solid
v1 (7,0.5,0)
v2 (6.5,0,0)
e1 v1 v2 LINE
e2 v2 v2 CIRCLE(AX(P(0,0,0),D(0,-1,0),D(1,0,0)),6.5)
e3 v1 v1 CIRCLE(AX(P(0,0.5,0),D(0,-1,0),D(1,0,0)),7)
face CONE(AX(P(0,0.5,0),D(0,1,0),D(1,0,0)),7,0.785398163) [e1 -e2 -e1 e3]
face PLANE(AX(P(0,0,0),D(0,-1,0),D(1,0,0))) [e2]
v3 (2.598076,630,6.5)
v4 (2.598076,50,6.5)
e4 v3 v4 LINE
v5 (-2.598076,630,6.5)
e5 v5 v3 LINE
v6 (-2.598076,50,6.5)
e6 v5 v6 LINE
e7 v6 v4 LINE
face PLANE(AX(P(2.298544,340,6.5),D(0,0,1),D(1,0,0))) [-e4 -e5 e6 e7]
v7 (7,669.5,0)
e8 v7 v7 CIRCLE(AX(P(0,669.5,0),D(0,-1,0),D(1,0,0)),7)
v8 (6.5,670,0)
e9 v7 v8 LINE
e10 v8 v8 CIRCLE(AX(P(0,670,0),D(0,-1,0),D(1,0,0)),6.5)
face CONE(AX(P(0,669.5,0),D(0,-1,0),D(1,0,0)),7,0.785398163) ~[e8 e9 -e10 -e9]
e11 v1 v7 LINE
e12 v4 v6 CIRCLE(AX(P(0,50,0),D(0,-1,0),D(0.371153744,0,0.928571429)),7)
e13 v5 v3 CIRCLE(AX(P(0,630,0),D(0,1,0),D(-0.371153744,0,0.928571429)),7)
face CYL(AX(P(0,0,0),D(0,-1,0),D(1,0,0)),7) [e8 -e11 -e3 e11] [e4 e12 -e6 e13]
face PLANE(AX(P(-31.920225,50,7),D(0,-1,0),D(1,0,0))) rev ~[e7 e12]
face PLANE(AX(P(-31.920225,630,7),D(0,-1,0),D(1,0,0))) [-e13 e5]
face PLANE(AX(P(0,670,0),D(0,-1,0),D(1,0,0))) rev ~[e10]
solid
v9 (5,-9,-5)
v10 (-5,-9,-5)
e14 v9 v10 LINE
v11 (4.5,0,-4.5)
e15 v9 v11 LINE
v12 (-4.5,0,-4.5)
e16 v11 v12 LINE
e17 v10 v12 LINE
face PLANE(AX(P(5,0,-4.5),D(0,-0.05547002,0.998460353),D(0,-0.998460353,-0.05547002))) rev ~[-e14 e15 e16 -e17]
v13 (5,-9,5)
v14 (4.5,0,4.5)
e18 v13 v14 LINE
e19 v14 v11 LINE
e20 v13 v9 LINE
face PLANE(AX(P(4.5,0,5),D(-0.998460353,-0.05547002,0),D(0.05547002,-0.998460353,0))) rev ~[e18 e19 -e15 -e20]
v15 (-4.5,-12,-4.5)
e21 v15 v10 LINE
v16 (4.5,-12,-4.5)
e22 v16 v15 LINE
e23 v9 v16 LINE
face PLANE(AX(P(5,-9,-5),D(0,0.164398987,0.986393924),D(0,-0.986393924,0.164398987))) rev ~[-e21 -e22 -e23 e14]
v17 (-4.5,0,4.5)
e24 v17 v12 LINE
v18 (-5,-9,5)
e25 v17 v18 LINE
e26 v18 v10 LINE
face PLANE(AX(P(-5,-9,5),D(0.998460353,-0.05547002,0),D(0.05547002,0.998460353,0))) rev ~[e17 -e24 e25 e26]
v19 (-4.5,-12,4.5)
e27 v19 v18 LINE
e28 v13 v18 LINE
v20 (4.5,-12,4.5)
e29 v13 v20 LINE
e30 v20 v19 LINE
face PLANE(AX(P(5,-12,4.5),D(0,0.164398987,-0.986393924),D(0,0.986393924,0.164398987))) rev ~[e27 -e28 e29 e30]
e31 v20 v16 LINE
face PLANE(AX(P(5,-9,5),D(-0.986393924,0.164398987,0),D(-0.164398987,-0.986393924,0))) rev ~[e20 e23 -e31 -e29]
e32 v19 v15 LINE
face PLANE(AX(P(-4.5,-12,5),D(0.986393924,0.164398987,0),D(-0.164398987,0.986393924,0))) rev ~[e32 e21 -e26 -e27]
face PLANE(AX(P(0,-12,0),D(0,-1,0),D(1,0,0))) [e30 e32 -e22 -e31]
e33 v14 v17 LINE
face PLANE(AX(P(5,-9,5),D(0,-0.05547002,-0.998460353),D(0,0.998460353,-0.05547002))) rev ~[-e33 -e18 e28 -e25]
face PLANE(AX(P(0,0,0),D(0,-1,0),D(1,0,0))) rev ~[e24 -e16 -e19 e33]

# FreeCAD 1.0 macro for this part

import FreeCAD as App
import Part
import Sketcher

V = App.Vector
Q = App.Units.Quantity


def edges_at(feature, points):
    """Names of the edges that pass closest to the given points."""
    edges = feature.Shape.Edges
    near = lambda p: min(range(len(edges)), key=lambda i: edges[i].distToShape(Part.Vertex(*p))[0])
    return sorted({f"Edge{near(p) + 1}" for p in points})


def add_polygon(sketch, points):
    """Adds a closed chain of lines whose ends are joined by coincident constraints."""
    first, n = sketch.GeometryCount, len(points)
    for a, b in zip(points, points[1:] + points[:1]):
        sketch.addGeometry(Part.LineSegment(App.Vector(*a, 0), App.Vector(*b, 0)), False)
    for i in range(n):
        sketch.addConstraint(Sketcher.Constraint("Coincident", first + i, 2, first + (i + 1) % n, 1))

doc = App.newDocument("Part")
body = doc.addObject("PartDesign::Body", "Body")

sketch1 = body.newObject("Sketcher::SketchObject", "Sketch")
sketch1.AttachmentSupport = (doc.getObject("XZ_Plane"), [""])
sketch1.MapMode = "FlatFace"
sketch1.addGeometry(Part.Circle(V(0, 0, 0), V(0, 0, 1), 7), False)
sketch1.addConstraint(Sketcher.Constraint("Coincident", 0, 3, -1, 1))
sketch1.addConstraint(Sketcher.Constraint("Diameter", 0, Q("14 mm")))
pad1 = body.newObject("PartDesign::Pad", "Pad")
pad1.Profile = sketch1
pad1.Length = 670
pad1.Reversed = True
doc.recompute()

chamfer = body.newObject("PartDesign::Chamfer", "Chamfer")
chamfer.Base = (pad1, edges_at(pad1, [(-7, 0, 0)]))
chamfer.Size = 0.5

sketch2 = body.newObject("Sketcher::SketchObject", "Sketch001")
sketch2.AttachmentSupport = (doc.getObject("XY_Plane"), [""])
sketch2.MapMode = "FlatFace"
sketch2.AttachmentOffset = App.Placement(V(0, 0, 7), App.Rotation())
add_polygon(sketch2, [(-32, 630), (-32, 50), (37, 50), (37, 630)])
sketch2.addConstraint(Sketcher.Constraint("Vertical", 0))
sketch2.addConstraint(Sketcher.Constraint("Horizontal", 1))
sketch2.addConstraint(Sketcher.Constraint("Vertical", 2))
sketch2.addConstraint(Sketcher.Constraint("Horizontal", 3))
sketch2.addConstraint(Sketcher.Constraint("DistanceY", 0, 2, 0, 1, Q("580 mm")))
sketch2.addConstraint(Sketcher.Constraint("DistanceY", -1, 1, 0, 2, Q("50 mm")))
sketch2.addConstraint(Sketcher.Constraint("DistanceX", 1, 1, 1, 2, Q("68.437538 mm")))
sketch2.addConstraint(Sketcher.Constraint("DistanceX", 0, 2, -1, 1, Q("31.920225 mm")))
pocket1 = body.newObject("PartDesign::Pocket", "Pocket")
pocket1.Profile = sketch2
pocket1.Length = 0.5
doc.recompute()

chamfer2 = body.newObject("PartDesign::Chamfer", "Chamfer001")
chamfer2.Base = (pocket1, edges_at(pocket1, [(-7, 670, 0)]))
chamfer2.Size = 0.5
body2 = doc.addObject("PartDesign::Body", "Body001")

sketch3 = body2.newObject("Sketcher::SketchObject", "Sketch002")
sketch3.AttachmentSupport = (doc.getObject("XZ_Plane001"), [""])
sketch3.MapMode = "FlatFace"
add_polygon(sketch3, [(5, 5), (-5, 5), (-5, -5), (5, -5)])
sketch3.addConstraint(Sketcher.Constraint("Horizontal", 0))
sketch3.addConstraint(Sketcher.Constraint("Vertical", 1))
sketch3.addConstraint(Sketcher.Constraint("Horizontal", 2))
sketch3.addConstraint(Sketcher.Constraint("Vertical", 3))
sketch3.addConstraint(Sketcher.Constraint("Symmetric", 0, 2, 2, 2, -1, 1))
sketch3.addConstraint(Sketcher.Constraint("Equal", 2, 1))
sketch3.addConstraint(Sketcher.Constraint("DistanceX", 0, 2, 0, 1, Q("10 mm")))
pad2 = body2.newObject("PartDesign::Pad", "Pad001")
pad2.Profile = sketch3
pad2.Length = 12

sketch4 = body2.newObject("Sketcher::SketchObject", "Sketch003")
sketch4.AttachmentSupport = (doc.getObject("YZ_Plane001"), [""])
sketch4.MapMode = "FlatFace"
sketch4.AttachmentOffset = App.Placement(V(0, 0, 5), App.Rotation())
add_polygon(sketch4, [(-9, -5), (-12, -4.5), (-12, -5)])
sketch4.addConstraint(Sketcher.Constraint("Vertical", 1))
sketch4.addConstraint(Sketcher.Constraint("Horizontal", 2))
sketch4.addConstraint(Sketcher.Constraint("DistanceX", 2, 1, 2, 2, Q("3 mm")))
sketch4.addConstraint(Sketcher.Constraint("DistanceY", 1, 2, 1, 1, Q("0.5 mm")))
sketch4.addConstraint(Sketcher.Constraint("DistanceX", 0, 2, -1, 1, Q("12 mm")))
sketch4.addConstraint(Sketcher.Constraint("DistanceY", 1, 2, -1, 1, Q("5 mm")))
pocket2 = body2.newObject("PartDesign::Pocket", "Pocket001")
pocket2.Profile = sketch4
pocket2.Length = 25

sketch5 = body2.newObject("Sketcher::SketchObject", "Sketch004")
sketch5.AttachmentSupport = (doc.getObject("XY_Plane001"), [""])
sketch5.MapMode = "FlatFace"
sketch5.AttachmentOffset = App.Placement(V(0, 0, 5), App.Rotation())
add_polygon(sketch5, [(5, -9), (4.5, -12), (5, -12)])
sketch5.addConstraint(Sketcher.Constraint("Horizontal", 1))
sketch5.addConstraint(Sketcher.Constraint("Vertical", 2))
sketch5.addConstraint(Sketcher.Constraint("DistanceY", 2, 1, 2, 2, Q("3 mm")))
sketch5.addConstraint(Sketcher.Constraint("DistanceX", 1, 1, 1, 2, Q("0.5 mm")))
sketch5.addConstraint(Sketcher.Constraint("DistanceY", 0, 2, -1, 1, Q("12 mm")))
sketch5.addConstraint(Sketcher.Constraint("DistanceX", -1, 1, 1, 2, Q("5 mm")))
pocket3 = body2.newObject("PartDesign::Pocket", "Pocket002")
pocket3.Profile = sketch5
pocket3.Length = 25

sketch6 = body2.newObject("Sketcher::SketchObject", "Sketch005")
sketch6.AttachmentSupport = (doc.getObject("XY_Plane001"), [""])
sketch6.MapMode = "FlatFace"
sketch6.AttachmentOffset = App.Placement(V(0, 0, 5), App.Rotation())
add_polygon(sketch6, [(-5, -12), (-4.5, -12), (-5, -9)])
sketch6.addConstraint(Sketcher.Constraint("Horizontal", 0))
sketch6.addConstraint(Sketcher.Constraint("Vertical", 2))
sketch6.addConstraint(Sketcher.Constraint("DistanceY", 2, 2, 2, 1, Q("3 mm")))
sketch6.addConstraint(Sketcher.Constraint("DistanceX", 0, 1, 0, 2, Q("0.5 mm")))
sketch6.addConstraint(Sketcher.Constraint("DistanceY", 0, 2, -1, 1, Q("12 mm")))
sketch6.addConstraint(Sketcher.Constraint("DistanceX", 1, 2, -1, 1, Q("5 mm")))
pocket4 = body2.newObject("PartDesign::Pocket", "Pocket003")
pocket4.Profile = sketch6
pocket4.Length = 25

sketch7 = body2.newObject("Sketcher::SketchObject", "Sketch006")
sketch7.AttachmentSupport = (doc.getObject("YZ_Plane001"), [""])
sketch7.MapMode = "FlatFace"
sketch7.AttachmentOffset = App.Placement(V(0, 0, 5), App.Rotation())
add_polygon(sketch7, [(-12, 5), (-12, 4.5), (-9, 5)])
sketch7.addConstraint(Sketcher.Constraint("Vertical", 0))
sketch7.addConstraint(Sketcher.Constraint("Horizontal", 2))
sketch7.addConstraint(Sketcher.Constraint("DistanceX", 2, 2, 2, 1, Q("3 mm")))
sketch7.addConstraint(Sketcher.Constraint("DistanceY", 0, 2, 0, 1, Q("0.5 mm")))
sketch7.addConstraint(Sketcher.Constraint("DistanceX", 0, 2, -1, 1, Q("12 mm")))
sketch7.addConstraint(Sketcher.Constraint("DistanceY", -1, 1, 1, 2, Q("5 mm")))
pocket5 = body2.newObject("PartDesign::Pocket", "Pocket004")
pocket5.Profile = sketch7
pocket5.Length = 25

sketch8 = body2.newObject("Sketcher::SketchObject", "Sketch007")
sketch8.AttachmentSupport = (doc.getObject("YZ_Plane001"), [""])
sketch8.MapMode = "FlatFace"
sketch8.AttachmentOffset = App.Placement(V(0, 0, 5), App.Rotation())
add_polygon(sketch8, [(0, 5), (-9, 5), (0, 4.5)])
sketch8.addConstraint(Sketcher.Constraint("Horizontal", 0))
sketch8.addConstraint(Sketcher.Constraint("Vertical", 2))
sketch8.addConstraint(Sketcher.Constraint("PointOnObject", 1, 2, -2))
sketch8.addConstraint(Sketcher.Constraint("DistanceX", 0, 2, 0, 1, Q("9 mm")))
sketch8.addConstraint(Sketcher.Constraint("DistanceY", 2, 1, 2, 2, Q("0.5 mm")))
sketch8.addConstraint(Sketcher.Constraint("DistanceY", -1, 1, 0, 2, Q("5 mm")))
pocket6 = body2.newObject("PartDesign::Pocket", "Pocket005")
pocket6.Profile = sketch8
pocket6.Length = 25

sketch9 = body2.newObject("Sketcher::SketchObject", "Sketch008")
sketch9.AttachmentSupport = (doc.getObject("XY_Plane001"), [""])
sketch9.MapMode = "FlatFace"
sketch9.AttachmentOffset = App.Placement(V(0, 0, 5), App.Rotation())
add_polygon(sketch9, [(4.5, 0), (5, -9), (5, 0)])
sketch9.addConstraint(Sketcher.Constraint("Vertical", 1))
sketch9.addConstraint(Sketcher.Constraint("Horizontal", 2))
sketch9.addConstraint(Sketcher.Constraint("PointOnObject", 1, 2, -1))
sketch9.addConstraint(Sketcher.Constraint("DistanceY", 1, 1, 1, 2, Q("9 mm")))
sketch9.addConstraint(Sketcher.Constraint("DistanceX", 2, 2, 2, 1, Q("0.5 mm")))
sketch9.addConstraint(Sketcher.Constraint("DistanceX", -1, 1, 0, 2, Q("5 mm")))
pocket7 = body2.newObject("PartDesign::Pocket", "Pocket006")
pocket7.Profile = sketch9
pocket7.Length = 25

sketch10 = body2.newObject("Sketcher::SketchObject", "Sketch009")
sketch10.AttachmentSupport = (doc.getObject("YZ_Plane001"), [""])
sketch10.MapMode = "FlatFace"
sketch10.AttachmentOffset = App.Placement(V(0, 0, 5), App.Rotation())
add_polygon(sketch10, [(0, -4.5), (-9, -5), (0, -5)])
sketch10.addConstraint(Sketcher.Constraint("Horizontal", 1))
sketch10.addConstraint(Sketcher.Constraint("Vertical", 2))
sketch10.addConstraint(Sketcher.Constraint("PointOnObject", 1, 2, -2))
sketch10.addConstraint(Sketcher.Constraint("DistanceX", 1, 1, 1, 2, Q("9 mm")))
sketch10.addConstraint(Sketcher.Constraint("DistanceY", 2, 1, 2, 2, Q("0.5 mm")))
sketch10.addConstraint(Sketcher.Constraint("DistanceY", 0, 2, -1, 1, Q("5 mm")))
pocket8 = body2.newObject("PartDesign::Pocket", "Pocket007")
pocket8.Profile = sketch10
pocket8.Length = 25

sketch11 = body2.newObject("Sketcher::SketchObject", "Sketch010")
sketch11.AttachmentSupport = (doc.getObject("XY_Plane001"), [""])
sketch11.MapMode = "FlatFace"
sketch11.AttachmentOffset = App.Placement(V(0, 0, 5), App.Rotation())
add_polygon(sketch11, [(-5, 0), (-5, -9), (-4.5, 0)])
sketch11.addConstraint(Sketcher.Constraint("Vertical", 0))
sketch11.addConstraint(Sketcher.Constraint("Horizontal", 2))
sketch11.addConstraint(Sketcher.Constraint("PointOnObject", 1, 2, -1))
sketch11.addConstraint(Sketcher.Constraint("DistanceY", 0, 2, 0, 1, Q("9 mm")))
sketch11.addConstraint(Sketcher.Constraint("DistanceX", 2, 2, 2, 1, Q("0.5 mm")))
sketch11.addConstraint(Sketcher.Constraint("DistanceX", 0, 2, -1, 1, Q("5 mm")))
pocket9 = body2.newObject("PartDesign::Pocket", "Pocket008")
pocket9.Profile = sketch11
pocket9.Length = 25

doc.recompute()
